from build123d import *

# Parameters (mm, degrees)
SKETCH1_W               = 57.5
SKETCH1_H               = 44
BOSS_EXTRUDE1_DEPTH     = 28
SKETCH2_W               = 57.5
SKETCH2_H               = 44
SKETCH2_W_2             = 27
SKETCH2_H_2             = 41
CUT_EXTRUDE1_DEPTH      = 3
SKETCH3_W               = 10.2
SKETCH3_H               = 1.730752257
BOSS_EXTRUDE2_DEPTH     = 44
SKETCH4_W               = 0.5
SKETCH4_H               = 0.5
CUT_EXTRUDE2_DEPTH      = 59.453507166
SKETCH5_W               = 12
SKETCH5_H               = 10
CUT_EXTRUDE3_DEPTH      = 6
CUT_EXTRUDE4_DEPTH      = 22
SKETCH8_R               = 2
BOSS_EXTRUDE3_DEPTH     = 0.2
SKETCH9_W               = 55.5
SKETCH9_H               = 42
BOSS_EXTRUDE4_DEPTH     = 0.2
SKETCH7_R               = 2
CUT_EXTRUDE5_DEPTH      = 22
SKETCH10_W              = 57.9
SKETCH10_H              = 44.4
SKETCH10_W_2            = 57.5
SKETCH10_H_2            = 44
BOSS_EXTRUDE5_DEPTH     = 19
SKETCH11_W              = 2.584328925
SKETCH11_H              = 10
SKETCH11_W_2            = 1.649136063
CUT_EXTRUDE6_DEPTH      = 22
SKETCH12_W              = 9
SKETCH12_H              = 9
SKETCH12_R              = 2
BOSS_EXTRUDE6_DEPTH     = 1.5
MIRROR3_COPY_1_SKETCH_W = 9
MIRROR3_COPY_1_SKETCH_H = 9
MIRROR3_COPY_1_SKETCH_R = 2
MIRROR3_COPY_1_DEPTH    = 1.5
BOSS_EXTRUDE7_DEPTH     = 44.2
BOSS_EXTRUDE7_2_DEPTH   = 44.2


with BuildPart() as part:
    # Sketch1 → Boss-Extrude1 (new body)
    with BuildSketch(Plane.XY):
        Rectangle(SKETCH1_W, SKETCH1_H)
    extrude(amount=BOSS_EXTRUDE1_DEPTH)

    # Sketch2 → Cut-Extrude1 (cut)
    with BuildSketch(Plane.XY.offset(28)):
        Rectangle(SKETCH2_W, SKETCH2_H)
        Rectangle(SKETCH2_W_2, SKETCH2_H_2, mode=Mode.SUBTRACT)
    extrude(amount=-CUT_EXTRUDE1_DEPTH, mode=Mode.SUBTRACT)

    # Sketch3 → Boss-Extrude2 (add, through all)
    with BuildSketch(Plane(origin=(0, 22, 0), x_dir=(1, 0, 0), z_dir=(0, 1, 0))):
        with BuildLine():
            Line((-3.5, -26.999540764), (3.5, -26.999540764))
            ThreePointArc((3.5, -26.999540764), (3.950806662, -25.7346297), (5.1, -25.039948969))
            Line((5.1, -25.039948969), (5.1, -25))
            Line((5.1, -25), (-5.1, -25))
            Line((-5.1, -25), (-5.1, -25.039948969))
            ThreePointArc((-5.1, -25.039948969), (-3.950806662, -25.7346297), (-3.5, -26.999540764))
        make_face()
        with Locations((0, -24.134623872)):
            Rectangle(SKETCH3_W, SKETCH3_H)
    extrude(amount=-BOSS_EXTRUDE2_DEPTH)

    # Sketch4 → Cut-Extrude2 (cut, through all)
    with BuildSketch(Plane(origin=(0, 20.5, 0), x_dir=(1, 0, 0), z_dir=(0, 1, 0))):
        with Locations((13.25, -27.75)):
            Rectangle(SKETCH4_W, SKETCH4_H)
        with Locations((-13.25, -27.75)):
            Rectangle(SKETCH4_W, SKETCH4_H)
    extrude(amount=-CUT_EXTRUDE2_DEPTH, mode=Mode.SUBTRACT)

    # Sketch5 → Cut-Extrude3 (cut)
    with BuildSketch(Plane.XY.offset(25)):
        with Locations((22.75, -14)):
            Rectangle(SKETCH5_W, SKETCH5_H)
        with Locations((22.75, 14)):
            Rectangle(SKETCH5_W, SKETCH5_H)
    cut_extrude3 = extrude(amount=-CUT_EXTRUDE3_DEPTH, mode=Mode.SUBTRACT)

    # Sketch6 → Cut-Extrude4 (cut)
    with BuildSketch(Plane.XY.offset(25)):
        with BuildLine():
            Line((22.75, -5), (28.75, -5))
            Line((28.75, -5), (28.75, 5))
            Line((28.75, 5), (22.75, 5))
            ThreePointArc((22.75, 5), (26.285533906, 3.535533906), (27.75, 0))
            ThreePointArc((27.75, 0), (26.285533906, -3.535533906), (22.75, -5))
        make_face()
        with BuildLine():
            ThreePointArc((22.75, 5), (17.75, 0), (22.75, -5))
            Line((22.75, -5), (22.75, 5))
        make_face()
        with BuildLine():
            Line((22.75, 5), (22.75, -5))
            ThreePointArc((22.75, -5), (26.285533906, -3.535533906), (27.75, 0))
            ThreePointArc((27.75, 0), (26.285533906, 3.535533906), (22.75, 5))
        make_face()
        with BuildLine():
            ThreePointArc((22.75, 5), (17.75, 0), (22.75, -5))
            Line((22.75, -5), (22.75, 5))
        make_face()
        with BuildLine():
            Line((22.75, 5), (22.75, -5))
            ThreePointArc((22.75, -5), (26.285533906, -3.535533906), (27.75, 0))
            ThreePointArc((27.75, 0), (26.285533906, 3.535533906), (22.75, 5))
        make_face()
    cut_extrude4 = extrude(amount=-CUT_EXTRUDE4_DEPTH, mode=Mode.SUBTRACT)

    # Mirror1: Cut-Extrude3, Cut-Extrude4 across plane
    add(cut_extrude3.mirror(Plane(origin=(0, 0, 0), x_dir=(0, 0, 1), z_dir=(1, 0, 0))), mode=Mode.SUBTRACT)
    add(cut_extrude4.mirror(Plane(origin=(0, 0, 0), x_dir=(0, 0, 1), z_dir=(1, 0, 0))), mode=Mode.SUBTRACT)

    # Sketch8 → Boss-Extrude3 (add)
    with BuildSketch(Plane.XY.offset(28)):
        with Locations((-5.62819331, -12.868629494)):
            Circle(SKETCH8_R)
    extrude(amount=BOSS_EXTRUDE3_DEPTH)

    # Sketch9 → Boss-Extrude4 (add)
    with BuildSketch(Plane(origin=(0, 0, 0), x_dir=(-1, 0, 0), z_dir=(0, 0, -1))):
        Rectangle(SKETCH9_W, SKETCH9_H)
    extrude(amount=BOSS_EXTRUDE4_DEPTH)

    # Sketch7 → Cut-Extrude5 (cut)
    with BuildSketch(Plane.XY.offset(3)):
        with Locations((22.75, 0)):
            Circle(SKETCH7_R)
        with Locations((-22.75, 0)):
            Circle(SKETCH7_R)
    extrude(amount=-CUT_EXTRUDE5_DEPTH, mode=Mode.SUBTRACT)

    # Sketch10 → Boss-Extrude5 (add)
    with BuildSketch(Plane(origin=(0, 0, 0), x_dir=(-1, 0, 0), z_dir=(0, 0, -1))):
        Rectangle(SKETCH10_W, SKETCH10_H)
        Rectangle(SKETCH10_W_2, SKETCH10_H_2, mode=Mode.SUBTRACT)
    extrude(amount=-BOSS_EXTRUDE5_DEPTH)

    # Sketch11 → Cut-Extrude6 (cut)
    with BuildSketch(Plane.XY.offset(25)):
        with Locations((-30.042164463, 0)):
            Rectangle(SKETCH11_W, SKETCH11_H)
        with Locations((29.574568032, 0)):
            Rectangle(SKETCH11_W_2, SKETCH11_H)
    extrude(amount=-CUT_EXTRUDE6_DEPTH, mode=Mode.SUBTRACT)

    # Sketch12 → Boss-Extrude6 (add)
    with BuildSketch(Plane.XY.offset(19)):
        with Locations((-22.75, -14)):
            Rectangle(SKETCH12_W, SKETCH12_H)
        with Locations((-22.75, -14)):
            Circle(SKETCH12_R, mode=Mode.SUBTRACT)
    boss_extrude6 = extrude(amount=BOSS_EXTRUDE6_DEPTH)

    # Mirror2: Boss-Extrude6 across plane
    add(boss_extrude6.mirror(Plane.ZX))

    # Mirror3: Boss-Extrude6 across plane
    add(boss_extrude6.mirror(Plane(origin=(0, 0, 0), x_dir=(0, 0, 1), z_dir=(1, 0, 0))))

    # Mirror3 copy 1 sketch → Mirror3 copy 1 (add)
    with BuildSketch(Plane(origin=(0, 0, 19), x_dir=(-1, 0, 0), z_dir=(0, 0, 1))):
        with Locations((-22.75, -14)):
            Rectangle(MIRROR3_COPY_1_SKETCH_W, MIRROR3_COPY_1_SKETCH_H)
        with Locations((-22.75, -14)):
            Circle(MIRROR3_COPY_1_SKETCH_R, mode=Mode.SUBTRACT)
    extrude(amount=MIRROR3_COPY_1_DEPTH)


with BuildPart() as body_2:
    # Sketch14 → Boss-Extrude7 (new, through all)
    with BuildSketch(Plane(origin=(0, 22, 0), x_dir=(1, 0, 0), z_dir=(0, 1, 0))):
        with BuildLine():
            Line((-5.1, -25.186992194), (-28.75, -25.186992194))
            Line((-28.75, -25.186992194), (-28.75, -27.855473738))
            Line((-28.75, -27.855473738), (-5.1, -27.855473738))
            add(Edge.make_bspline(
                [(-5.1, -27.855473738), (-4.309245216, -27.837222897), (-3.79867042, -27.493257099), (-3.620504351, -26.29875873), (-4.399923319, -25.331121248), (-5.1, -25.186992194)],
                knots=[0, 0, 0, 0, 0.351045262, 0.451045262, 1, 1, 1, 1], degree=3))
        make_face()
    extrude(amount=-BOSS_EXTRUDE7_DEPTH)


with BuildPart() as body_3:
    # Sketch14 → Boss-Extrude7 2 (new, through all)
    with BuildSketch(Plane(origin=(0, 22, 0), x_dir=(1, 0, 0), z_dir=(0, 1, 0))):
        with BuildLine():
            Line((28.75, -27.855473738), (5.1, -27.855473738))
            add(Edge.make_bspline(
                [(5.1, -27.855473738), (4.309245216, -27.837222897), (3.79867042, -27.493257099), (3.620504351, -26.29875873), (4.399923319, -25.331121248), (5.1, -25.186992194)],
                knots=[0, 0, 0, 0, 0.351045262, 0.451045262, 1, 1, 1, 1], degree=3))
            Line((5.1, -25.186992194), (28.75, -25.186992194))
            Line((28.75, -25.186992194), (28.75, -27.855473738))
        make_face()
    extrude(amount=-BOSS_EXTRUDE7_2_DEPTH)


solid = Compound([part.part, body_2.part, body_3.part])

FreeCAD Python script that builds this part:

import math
import FreeCAD as App
import Part
import Sketcher

V = App.Vector


def add_polygon(sketch, points):
    """Adds a closed chain of lines whose ends are joined by coincident constraints."""
    first, n = sketch.GeometryCount, len(points)
    for a, b in zip(points, points[1:] + points[:1]):
        sketch.addGeometry(Part.LineSegment(App.Vector(*a, 0), App.Vector(*b, 0)), False)
    for i in range(n):
        sketch.addConstraint(Sketcher.Constraint("Coincident", first + i, 2, first + (i + 1) % n, 1))

doc = App.newDocument("Part")
body = doc.addObject("PartDesign::Body", "Body")

# Sketch on XY plane
sketch1 = body.newObject("Sketcher::SketchObject", "Sketch")
sketch1.AttachmentSupport = (doc.getObject("XY_Plane"), [""])
sketch1.MapMode = "FlatFace"
add_polygon(sketch1, [(-29, 22), (-29, -22), (29, -22), (29, 22)])  # lines 0-3
sketch1.addConstraint([
    Sketcher.Constraint("Vertical", 0),
    Sketcher.Constraint("Horizontal", 1),
    Sketcher.Constraint("Vertical", 2),
    Sketcher.Constraint("Horizontal", 3),
    Sketcher.Constraint("Symmetric", 0, 2, 2, 2, -1, 1),
    Sketcher.Constraint("DistanceY", 0, 2, 0, 1, 44.0),
    Sketcher.Constraint("DistanceX", 1, 1, 1, 2, 57.5),
])
pad1 = body.newObject("PartDesign::Pad", "Pad")
pad1.Profile = sketch1
pad1.Length = 28

# Sketch on XY plane
sketch2 = body.newObject("Sketcher::SketchObject", "Sketch001")
sketch2.AttachmentSupport = (doc.getObject("XY_Plane"), [""])
sketch2.MapMode = "FlatFace"
sketch2.AttachmentOffset = App.Placement(V(0, 0, 28), App.Rotation())
add_polygon(sketch2, [(-29, 22), (-29, -22), (29, -22), (29, 22)])  # lines 0-3
add_polygon(sketch2, [(14, -20), (-14, -20), (-14, 20), (14, 20)])  # lines 4-7
sketch2.addConstraint([
    Sketcher.Constraint("Vertical", 0),
    Sketcher.Constraint("Horizontal", 1),
    Sketcher.Constraint("Vertical", 2),
    Sketcher.Constraint("Horizontal", 3),
    Sketcher.Constraint("Horizontal", 4),
    Sketcher.Constraint("Vertical", 5),
    Sketcher.Constraint("Horizontal", 6),
    Sketcher.Constraint("Vertical", 7),
    Sketcher.Constraint("Symmetric", 0, 2, 2, 2, -1, 1),
    Sketcher.Constraint("Symmetric", 4, 2, 6, 2, -1, 1),
    Sketcher.Constraint("DistanceX", 4, 2, 4, 1, 27.0),
    Sketcher.Constraint("DistanceY", 0, 2, 0, 1, 44.0),
    Sketcher.Constraint("DistanceY", 5, 1, 5, 2, 41.0),
    Sketcher.Constraint("DistanceX", 1, 1, 1, 2, 57.5),
])
pocket1 = body.newObject("PartDesign::Pocket", "Pocket")
pocket1.Profile = sketch2
pocket1.Length = 3

# Sketch on XZ plane
sketch3 = body.newObject("Sketcher::SketchObject", "Sketch002")
sketch3.AttachmentSupport = (doc.getObject("XZ_Plane"), [""])
sketch3.MapMode = "FlatFace"
sketch3.AttachmentOffset = App.Placement(V(0, 0, -22), App.Rotation())
sketch3.addGeometry([
    Part.LineSegment(V(-3.5, 27, 0), V(3.5, 27, 0)),  # 0
    Part.ArcOfCircle(Part.Circle(V(5.5, 27, 0), V(0, 0, 1), 2), math.radians(-180), math.radians(-102)),  # 1
    Part.LineSegment(V(5.1, 25, 0), V(5.1, 23.3, 0)),  # 2
    Part.LineSegment(V(5.1, 23.3, 0), V(-5.1, 23.3, 0)),  # 3
    Part.LineSegment(V(-5.1, 23.3, 0), V(-5.1, 25, 0)),  # 4
    Part.ArcOfCircle(Part.Circle(V(-5.5, 27, 0), V(0, 0, 1), 2), math.radians(-78), math.radians(0)),  # 5
], False)
sketch3.addConstraint([
    Sketcher.Constraint("Coincident", 0, 2, 1, 1),
    Sketcher.Constraint("Coincident", 1, 2, 2, 1),
    Sketcher.Constraint("Coincident", 2, 2, 3, 1),
    Sketcher.Constraint("Coincident", 3, 2, 4, 1),
    Sketcher.Constraint("Coincident", 4, 2, 5, 1),
    Sketcher.Constraint("Coincident", 5, 2, 0, 1),
    Sketcher.Constraint("Horizontal", 0),
    Sketcher.Constraint("Vertical", 2),
    Sketcher.Constraint("Horizontal", 3),
    Sketcher.Constraint("Vertical", 4),
    Sketcher.Constraint("Equal", 1, 5),
    Sketcher.Constraint("Symmetric", 1, 3, 5, 3, -2),
    Sketcher.Constraint("Horizontal", 5, 3, 0, 2),
    Sketcher.Constraint("Horizontal", 1, 2, 4, 2),
    Sketcher.Constraint("Radius", 1, 2.0),
    Sketcher.Constraint("DistanceX", 0, 1, 0, 2, 7.0),
    Sketcher.Constraint("DistanceX", 3, 2, 3, 1, 10.2),
    Sketcher.Constraint("DistanceY", 2, 2, 2, 1, 1.770701),
    Sketcher.Constraint("DistanceY", -1, 1, 1, 3, 26.999541),
])
pad2 = body.newObject("PartDesign::Pad", "Pad001")
pad2.Profile = sketch3
pad2.Type = "UpToLast"

# Sketch on XZ plane
sketch4 = body.newObject("Sketcher::SketchObject", "Sketch003")
sketch4.AttachmentSupport = (doc.getObject("XZ_Plane"), [""])
sketch4.MapMode = "FlatFace"
sketch4.AttachmentOffset = App.Placement(V(0, 0, -20.5), App.Rotation())
add_polygon(sketch4, [(13, 27.5), (13, 28), (13.5, 28), (13.5, 27.5)])  # lines 0-3
add_polygon(sketch4, [(-13.5, 27.5), (-13.5, 28), (-13, 28), (-13, 27.5)])  # lines 4-7
sketch4.addConstraint([
    Sketcher.Constraint("Vertical", 0),
    Sketcher.Constraint("Horizontal", 1),
    Sketcher.Constraint("Vertical", 2),
    Sketcher.Constraint("Horizontal", 3),
    Sketcher.Constraint("Vertical", 4),
    Sketcher.Constraint("Horizontal", 5),
    Sketcher.Constraint("Vertical", 6),
    Sketcher.Constraint("Horizontal", 7),
    Sketcher.Constraint("Symmetric", 1, 2, 4, 2, -2),
    Sketcher.Constraint("Symmetric", 3, 2, 6, 2, -2),
    Sketcher.Constraint("Equal", 7, 0),
    Sketcher.Constraint("DistanceX", 1, 1, 1, 2, 0.5),
    Sketcher.Constraint("DistanceX", -1, 1, 0, 2, 13.0),
    Sketcher.Constraint("DistanceY", -1, 1, 0, 2, 28.0),
])
pocket2 = body.newObject("PartDesign::Pocket", "Pocket001")
pocket2.Profile = sketch4
pocket2.Type = "ThroughAll"
pocket2.Reversed = True

# Sketch on XY plane
sketch5 = body.newObject("Sketcher::SketchObject", "Sketch004")
sketch5.AttachmentSupport = (doc.getObject("XY_Plane"), [""])
sketch5.MapMode = "FlatFace"
sketch5.AttachmentOffset = App.Placement(V(0, 0, 25), App.Rotation())
add_polygon(sketch5, [(17, -9), (17, -19), (29, -19), (29, -9)])  # lines 0-3
add_polygon(sketch5, [(17, 19), (17, 9), (29, 9), (29, 19)])  # lines 4-7
sketch5.addConstraint([
    Sketcher.Constraint("Vertical", 0),
    Sketcher.Constraint("Horizontal", 1),
    Sketcher.Constraint("Vertical", 2),
    Sketcher.Constraint("Horizontal", 3),
    Sketcher.Constraint("Vertical", 4),
    Sketcher.Constraint("Horizontal", 5),
    Sketcher.Constraint("Vertical", 6),
    Sketcher.Constraint("Horizontal", 7),
    Sketcher.Constraint("Symmetric", 3, 2, 4, 2, -1),
    Sketcher.Constraint("Symmetric", 1, 2, 6, 2, -1),
    Sketcher.Constraint("DistanceX", 1, 1, 1, 2, 12.0),
    Sketcher.Constraint("DistanceY", 0, 2, 0, 1, 10.0),
    Sketcher.Constraint("DistanceY", 0, 2, -1, 1, 19.0),
    Sketcher.Constraint("DistanceX", -1, 1, 0, 2, 16.75),
])
pocket3 = body.newObject("PartDesign::Pocket", "Pocket002")
pocket3.Profile = sketch5
pocket3.Length = 6

# Sketch on XY plane
sketch6 = body.newObject("Sketcher::SketchObject", "Sketch005")
sketch6.AttachmentSupport = (doc.getObject("XY_Plane"), [""])
sketch6.MapMode = "FlatFace"
sketch6.AttachmentOffset = App.Placement(V(0, 0, 25), App.Rotation())
sketch6.addGeometry([
    Part.LineSegment(V(29, -5, 0), V(29, 5, 0)),
    Part.LineSegment(V(29, 5, 0), V(23, 5, 0)),
    Part.ArcOfCircle(Part.Circle(V(23, 0, 0), V(0, 0, 1), 5), math.radians(90), math.radians(270)),
    Part.LineSegment(V(23, -5, 0), V(29, -5, 0)),
], False)
sketch6.addConstraint([
    Sketcher.Constraint("Coincident", 0, 2, 1, 1),
    Sketcher.Constraint("Tangent", 1, 2, 2, 1),
    Sketcher.Constraint("Tangent", 2, 2, 3, 1),
    Sketcher.Constraint("Coincident", 3, 2, 0, 1),
    Sketcher.Constraint("Vertical", 0),
    Sketcher.Constraint("Horizontal", 1),
    Sketcher.Constraint("Horizontal", 3),
    Sketcher.Constraint("PointOnObject", 2, 3, -1),
    Sketcher.Constraint("Radius", 2, 5.0),
    Sketcher.Constraint("DistanceX", 1, 2, 1, 1, 6.0),
    Sketcher.Constraint("DistanceX", -1, 1, 2, 3, 22.75),
])
pocket4 = body.newObject("PartDesign::Pocket", "Pocket003")
pocket4.Profile = sketch6
pocket4.Length = 22
doc.recompute()

mirrored = body.newObject("PartDesign::Mirrored", "Mirrored")
mirrored.Originals = [pocket3, pocket4]
mirrored.MirrorPlane = (doc.getObject("YZ_Plane"), [""])
body.Tip = mirrored

# Sketch on XY plane
sketch7 = body.newObject("Sketcher::SketchObject", "Sketch006")
sketch7.AttachmentSupport = (doc.getObject("XY_Plane"), [""])
sketch7.MapMode = "FlatFace"
sketch7.AttachmentOffset = App.Placement(V(0, 0, 28), App.Rotation())
sketch7.addGeometry(Part.Circle(V(-5.6, -12.9, 0), V(0, 0, 1), 2), False)
sketch7.addConstraint([
    Sketcher.Constraint("Diameter", 0, 4.0),
    Sketcher.Constraint("DistanceY", 0, 3, -1, 1, 12.868629),
    Sketcher.Constraint("DistanceX", 0, 3, -1, 1, 5.628193),
])
pad3 = body.newObject("PartDesign::Pad", "Pad002")
pad3.Profile = sketch7
pad3.Length = 0.2

# Sketch on XY plane
sketch8 = body.newObject("Sketcher::SketchObject", "Sketch007")
sketch8.AttachmentSupport = (doc.getObject("XY_Plane"), [""])
sketch8.MapMode = "FlatFace"
add_polygon(sketch8, [(28, 21), (28, -21), (-28, -21), (-28, 21)])  # lines 0-3
sketch8.addConstraint([
    Sketcher.Constraint("Vertical", 0),
    Sketcher.Constraint("Horizontal", 1),
    Sketcher.Constraint("Vertical", 2),
    Sketcher.Constraint("Horizontal", 3),
    Sketcher.Constraint("Symmetric", 0, 2, 2, 2, -1, 1),
    Sketcher.Constraint("DistanceY", 0, 2, 0, 1, 42.0),
    Sketcher.Constraint("DistanceX", 1, 2, 1, 1, 55.5),
])
pad4 = body.newObject("PartDesign::Pad", "Pad003")
pad4.Profile = sketch8
pad4.Length = 0.2
pad4.Reversed = True

# Sketch on XY plane
sketch9 = body.newObject("Sketcher::SketchObject", "Sketch008")
sketch9.AttachmentSupport = (doc.getObject("XY_Plane"), [""])
sketch9.MapMode = "FlatFace"
sketch9.AttachmentOffset = App.Placement(V(0, 0, 3), App.Rotation())
sketch9.addGeometry([
    Part.Circle(V(22.8, 0, 0), V(0, 0, 1), 2),
    Part.Circle(V(-22.8, 0, 0), V(0, 0, 1), 2),
], False)
sketch9.addConstraint([
    Sketcher.Constraint("Equal", 0, 1),
    Sketcher.Constraint("Symmetric", 0, 3, 1, 3, -1, 1),
    Sketcher.Constraint("PointOnObject", 0, 3, -1),
    Sketcher.Constraint("Diameter", 0, 4.0),
    Sketcher.Constraint("DistanceX", 1, 3, 0, 3, 45.5),
])
pocket5 = body.newObject("PartDesign::Pocket", "Pocket004")
pocket5.Profile = sketch9
pocket5.Length = 22

# Sketch on XY plane
sketch10 = body.newObject("Sketcher::SketchObject", "Sketch009")
sketch10.AttachmentSupport = (doc.getObject("XY_Plane"), [""])
sketch10.MapMode = "FlatFace"
add_polygon(sketch10, [(29, 22), (29, -22), (-29, -22), (-29, 22)])  # lines 0-3
add_polygon(sketch10, [(-29, -22), (29, -22), (29, 22), (-29, 22)])  # lines 4-7
sketch10.addConstraint([
    Sketcher.Constraint("Vertical", 0),
    Sketcher.Constraint("Horizontal", 1),
    Sketcher.Constraint("Vertical", 2),
    Sketcher.Constraint("Horizontal", 3),
    Sketcher.Constraint("Horizontal", 4),
    Sketcher.Constraint("Vertical", 5),
    Sketcher.Constraint("Horizontal", 6),
    Sketcher.Constraint("Vertical", 7),
    Sketcher.Constraint("Symmetric", 0, 2, 2, 2, -1, 1),
    Sketcher.Constraint("Symmetric", 4, 2, 6, 2, -1, 1),
    Sketcher.Constraint("DistanceY", 5, 1, 5, 2, 44.0),
    Sketcher.Constraint("DistanceX", 1, 2, 1, 1, 57.9),
    Sketcher.Constraint("DistanceX", 4, 1, 4, 2, 57.5),
    Sketcher.Constraint("DistanceY", 0, 2, 0, 1, 44.4),
])
pad5 = body.newObject("PartDesign::Pad", "Pad004")
pad5.Profile = sketch10
pad5.Length = 19

# Sketch on XY plane
sketch11 = body.newObject("Sketcher::SketchObject", "Sketch010")
sketch11.AttachmentSupport = (doc.getObject("XY_Plane"), [""])
sketch11.MapMode = "FlatFace"
sketch11.AttachmentOffset = App.Placement(V(0, 0, 25), App.Rotation())
add_polygon(sketch11, [(-31.3, 5), (-31.3, -5), (-28.8, -5), (-28.8, 5)])  # lines 0-3
add_polygon(sketch11, [(28.8, 5), (28.8, -5), (30.4, -5), (30.4, 5)])  # lines 4-7
sketch11.addConstraint([
    Sketcher.Constraint("Vertical", 0),
    Sketcher.Constraint("Horizontal", 1),
    Sketcher.Constraint("Vertical", 2),
    Sketcher.Constraint("Horizontal", 3),
    Sketcher.Constraint("Vertical", 4),
    Sketcher.Constraint("Horizontal", 5),
    Sketcher.Constraint("Vertical", 6),
    Sketcher.Constraint("Horizontal", 7),
    Sketcher.Constraint("Symmetric", 2, 2, 4, 2, -1, 1),
    Sketcher.Constraint("Horizontal", 1, 2, 4, 2),
    Sketcher.Constraint("Horizontal", 3, 2, 6, 2),
    Sketcher.Constraint("DistanceY", 0, 2, 0, 1, 10.0),
    Sketcher.Constraint("DistanceX", 1, 2, 4, 2, 57.5),
    Sketcher.Constraint("DistanceX", 1, 1, 1, 2, 2.584329),
    Sketcher.Constraint("DistanceX", 5, 1, 5, 2, 1.649136),
])
pocket6 = body.newObject("PartDesign::Pocket", "Pocket005")
pocket6.Profile = sketch11
pocket6.Length = 22

# Sketch on XY plane
sketch12 = body.newObject("Sketcher::SketchObject", "Sketch011")
sketch12.AttachmentSupport = (doc.getObject("XY_Plane"), [""])
sketch12.MapMode = "FlatFace"
sketch12.AttachmentOffset = App.Placement(V(0, 0, 19), App.Rotation())
add_polygon(sketch12, [(-27.2, -9.5), (-27.2, -18.5), (-18.2, -18.5), (-18.2, -9.5)])  # lines 0-3
sketch12.addGeometry(Part.Circle(V(-22.8, -14, 0), V(0, 0, 1), 2), False)  # 4
sketch12.addConstraint([
    Sketcher.Constraint("Vertical", 0),
    Sketcher.Constraint("Horizontal", 1),
    Sketcher.Constraint("Vertical", 2),
    Sketcher.Constraint("Horizontal", 3),
    Sketcher.Constraint("Equal", 3, 0),
    Sketcher.Constraint("Diameter", 4, 4.0),
    Sketcher.Constraint("DistanceX", 1, 1, 1, 2, 9.0),
    Sketcher.Constraint("DistanceY", 4, 3, -1, 1, 14.0),
    Sketcher.Constraint("DistanceY", 0, 2, -1, 1, 18.5),
    Sketcher.Constraint("DistanceX", 0, 2, 4, 3, 4.5),
    Sketcher.Constraint("DistanceX", 4, 3, -1, 1, 22.75),
])
pad6 = body.newObject("PartDesign::Pad", "Pad005")
pad6.Profile = sketch12
pad6.Length = 1.5
doc.recompute()

mirrored2 = body.newObject("PartDesign::Mirrored", "Mirrored001")
mirrored2.Originals = [pad6]
mirrored2.MirrorPlane = (doc.getObject("XZ_Plane"), [""])
body.Tip = mirrored2
doc.recompute()

mirrored3 = body.newObject("PartDesign::Mirrored", "Mirrored002")
mirrored3.Originals = [pad6]
mirrored3.MirrorPlane = (doc.getObject("YZ_Plane"), [""])
body.Tip = mirrored3

# Sketch on XY plane
sketch13 = body.newObject("Sketcher::SketchObject", "Sketch012")
sketch13.AttachmentSupport = (doc.getObject("XY_Plane"), [""])
sketch13.MapMode = "FlatFace"
sketch13.AttachmentOffset = App.Placement(V(0, 0, 19), App.Rotation())
add_polygon(sketch13, [(27.2, 9.5), (27.2, 18.5), (18.2, 18.5), (18.2, 9.5)])  # lines 0-3
sketch13.addGeometry(Part.Circle(V(22.8, 14, 0), V(0, 0, 1), 2), False)  # 4
sketch13.addConstraint([
    Sketcher.Constraint("Vertical", 0),
    Sketcher.Constraint("Horizontal", 1),
    Sketcher.Constraint("Vertical", 2),
    Sketcher.Constraint("Horizontal", 3),
    Sketcher.Constraint("Equal", 3, 0),
    Sketcher.Constraint("Diameter", 4, 4.0),
    Sketcher.Constraint("DistanceX", 1, 2, 1, 1, 9.0),
    Sketcher.Constraint("DistanceY", -1, 1, 4, 3, 14.0),
    Sketcher.Constraint("DistanceY", -1, 1, 0, 2, 18.5),
    Sketcher.Constraint("DistanceX", 4, 3, 0, 2, 4.5),
    Sketcher.Constraint("DistanceX", -1, 1, 4, 3, 22.75),
])
pad7 = body.newObject("PartDesign::Pad", "Pad006")
pad7.Profile = sketch13
pad7.Length = 1.5
body2 = doc.addObject("PartDesign::Body", "Body001")

# Sketch on XZ plane
sketch14 = body2.newObject("Sketcher::SketchObject", "Sketch013")
sketch14.AttachmentSupport = (doc.getObject("XZ_Plane001"), [""])
sketch14.MapMode = "FlatFace"
sketch14.AttachmentOffset = App.Placement(V(0, 0, -22), App.Rotation())
sketch14.addGeometry([
    Part.LineSegment(V(-5.1, 25.186992, 0), V(-28.75, 25.186992, 0)),
    Part.LineSegment(V(-28.75, 25.186992, 0), V(-28.75, 27.855474, 0)),
    Part.LineSegment(V(-28.75, 27.855474, 0), V(-5.1, 27.855474, 0)),
    Part.BSplineCurve([V(-5.1, 27.855474, 0), V(-4.309245, 27.837223, 0), V(-3.79867, 27.493257, 0), V(-3.620504, 26.298759, 0), V(-4.399923, 25.331121, 0), V(-5.1, 25.186992, 0)], [4, 1, 1, 4], [0, 0.351045262, 0.451045262, 1], False, 3, [1, 1, 1, 1, 1, 1], False),
], False)
sketch14.addConstraint([
    Sketcher.Constraint("Block", 3),
    Sketcher.Constraint("Coincident", 0, 2, 1, 1),
    Sketcher.Constraint("Coincident", 1, 2, 2, 1),
    Sketcher.Constraint("Coincident", 2, 2, 3, 1),
    Sketcher.Constraint("Coincident", 3, 2, 0, 1),
    Sketcher.Constraint("Horizontal", 0),
    Sketcher.Constraint("Vertical", 1),
    Sketcher.Constraint("Horizontal", 2),
    Sketcher.Constraint("DistanceX", 0, 2, 0, 1, 23.65),
])
pad8 = body2.newObject("PartDesign::Pad", "Pad007")
pad8.Profile = sketch14
pad8.Length = 44.2
body3 = doc.addObject("PartDesign::Body", "Body002")

# Sketch on XZ plane
sketch15 = body3.newObject("Sketcher::SketchObject", "Sketch014")
sketch15.AttachmentSupport = (doc.getObject("XZ_Plane002"), [""])
sketch15.MapMode = "FlatFace"
sketch15.AttachmentOffset = App.Placement(V(0, 0, -22), App.Rotation())
sketch15.addGeometry([
    Part.LineSegment(V(5.1, 27.855474, 0), V(28.75, 27.855474, 0)),
    Part.LineSegment(V(28.75, 27.855474, 0), V(28.75, 25.186992, 0)),
    Part.LineSegment(V(28.75, 25.186992, 0), V(5.1, 25.186992, 0)),
    Part.BSplineCurve([V(5.1, 27.855474, 0), V(4.309245, 27.837223, 0), V(3.79867, 27.493257, 0), V(3.620504, 26.298759, 0), V(4.399923, 25.331121, 0), V(5.1, 25.186992, 0)], [4, 1, 1, 4], [0, 0.351045262, 0.451045262, 1], False, 3, [1, 1, 1, 1, 1, 1], False),
], False)
sketch15.addConstraint([
    Sketcher.Constraint("Block", 3),
    Sketcher.Constraint("Coincident", 0, 2, 1, 1),
    Sketcher.Constraint("Coincident", 1, 2, 2, 1),
    Sketcher.Constraint("Coincident", 2, 2, 3, 2),
    Sketcher.Constraint("Coincident", 3, 1, 0, 1),
    Sketcher.Constraint("Horizontal", 0),
    Sketcher.Constraint("Vertical", 1),
    Sketcher.Constraint("Horizontal", 2),
    Sketcher.Constraint("DistanceX", 0, 1, 0, 2, 23.65),
])
pad9 = body3.newObject("PartDesign::Pad", "Pad008")
pad9.Profile = sketch15
pad9.Length = 44.2

doc.recompute()
